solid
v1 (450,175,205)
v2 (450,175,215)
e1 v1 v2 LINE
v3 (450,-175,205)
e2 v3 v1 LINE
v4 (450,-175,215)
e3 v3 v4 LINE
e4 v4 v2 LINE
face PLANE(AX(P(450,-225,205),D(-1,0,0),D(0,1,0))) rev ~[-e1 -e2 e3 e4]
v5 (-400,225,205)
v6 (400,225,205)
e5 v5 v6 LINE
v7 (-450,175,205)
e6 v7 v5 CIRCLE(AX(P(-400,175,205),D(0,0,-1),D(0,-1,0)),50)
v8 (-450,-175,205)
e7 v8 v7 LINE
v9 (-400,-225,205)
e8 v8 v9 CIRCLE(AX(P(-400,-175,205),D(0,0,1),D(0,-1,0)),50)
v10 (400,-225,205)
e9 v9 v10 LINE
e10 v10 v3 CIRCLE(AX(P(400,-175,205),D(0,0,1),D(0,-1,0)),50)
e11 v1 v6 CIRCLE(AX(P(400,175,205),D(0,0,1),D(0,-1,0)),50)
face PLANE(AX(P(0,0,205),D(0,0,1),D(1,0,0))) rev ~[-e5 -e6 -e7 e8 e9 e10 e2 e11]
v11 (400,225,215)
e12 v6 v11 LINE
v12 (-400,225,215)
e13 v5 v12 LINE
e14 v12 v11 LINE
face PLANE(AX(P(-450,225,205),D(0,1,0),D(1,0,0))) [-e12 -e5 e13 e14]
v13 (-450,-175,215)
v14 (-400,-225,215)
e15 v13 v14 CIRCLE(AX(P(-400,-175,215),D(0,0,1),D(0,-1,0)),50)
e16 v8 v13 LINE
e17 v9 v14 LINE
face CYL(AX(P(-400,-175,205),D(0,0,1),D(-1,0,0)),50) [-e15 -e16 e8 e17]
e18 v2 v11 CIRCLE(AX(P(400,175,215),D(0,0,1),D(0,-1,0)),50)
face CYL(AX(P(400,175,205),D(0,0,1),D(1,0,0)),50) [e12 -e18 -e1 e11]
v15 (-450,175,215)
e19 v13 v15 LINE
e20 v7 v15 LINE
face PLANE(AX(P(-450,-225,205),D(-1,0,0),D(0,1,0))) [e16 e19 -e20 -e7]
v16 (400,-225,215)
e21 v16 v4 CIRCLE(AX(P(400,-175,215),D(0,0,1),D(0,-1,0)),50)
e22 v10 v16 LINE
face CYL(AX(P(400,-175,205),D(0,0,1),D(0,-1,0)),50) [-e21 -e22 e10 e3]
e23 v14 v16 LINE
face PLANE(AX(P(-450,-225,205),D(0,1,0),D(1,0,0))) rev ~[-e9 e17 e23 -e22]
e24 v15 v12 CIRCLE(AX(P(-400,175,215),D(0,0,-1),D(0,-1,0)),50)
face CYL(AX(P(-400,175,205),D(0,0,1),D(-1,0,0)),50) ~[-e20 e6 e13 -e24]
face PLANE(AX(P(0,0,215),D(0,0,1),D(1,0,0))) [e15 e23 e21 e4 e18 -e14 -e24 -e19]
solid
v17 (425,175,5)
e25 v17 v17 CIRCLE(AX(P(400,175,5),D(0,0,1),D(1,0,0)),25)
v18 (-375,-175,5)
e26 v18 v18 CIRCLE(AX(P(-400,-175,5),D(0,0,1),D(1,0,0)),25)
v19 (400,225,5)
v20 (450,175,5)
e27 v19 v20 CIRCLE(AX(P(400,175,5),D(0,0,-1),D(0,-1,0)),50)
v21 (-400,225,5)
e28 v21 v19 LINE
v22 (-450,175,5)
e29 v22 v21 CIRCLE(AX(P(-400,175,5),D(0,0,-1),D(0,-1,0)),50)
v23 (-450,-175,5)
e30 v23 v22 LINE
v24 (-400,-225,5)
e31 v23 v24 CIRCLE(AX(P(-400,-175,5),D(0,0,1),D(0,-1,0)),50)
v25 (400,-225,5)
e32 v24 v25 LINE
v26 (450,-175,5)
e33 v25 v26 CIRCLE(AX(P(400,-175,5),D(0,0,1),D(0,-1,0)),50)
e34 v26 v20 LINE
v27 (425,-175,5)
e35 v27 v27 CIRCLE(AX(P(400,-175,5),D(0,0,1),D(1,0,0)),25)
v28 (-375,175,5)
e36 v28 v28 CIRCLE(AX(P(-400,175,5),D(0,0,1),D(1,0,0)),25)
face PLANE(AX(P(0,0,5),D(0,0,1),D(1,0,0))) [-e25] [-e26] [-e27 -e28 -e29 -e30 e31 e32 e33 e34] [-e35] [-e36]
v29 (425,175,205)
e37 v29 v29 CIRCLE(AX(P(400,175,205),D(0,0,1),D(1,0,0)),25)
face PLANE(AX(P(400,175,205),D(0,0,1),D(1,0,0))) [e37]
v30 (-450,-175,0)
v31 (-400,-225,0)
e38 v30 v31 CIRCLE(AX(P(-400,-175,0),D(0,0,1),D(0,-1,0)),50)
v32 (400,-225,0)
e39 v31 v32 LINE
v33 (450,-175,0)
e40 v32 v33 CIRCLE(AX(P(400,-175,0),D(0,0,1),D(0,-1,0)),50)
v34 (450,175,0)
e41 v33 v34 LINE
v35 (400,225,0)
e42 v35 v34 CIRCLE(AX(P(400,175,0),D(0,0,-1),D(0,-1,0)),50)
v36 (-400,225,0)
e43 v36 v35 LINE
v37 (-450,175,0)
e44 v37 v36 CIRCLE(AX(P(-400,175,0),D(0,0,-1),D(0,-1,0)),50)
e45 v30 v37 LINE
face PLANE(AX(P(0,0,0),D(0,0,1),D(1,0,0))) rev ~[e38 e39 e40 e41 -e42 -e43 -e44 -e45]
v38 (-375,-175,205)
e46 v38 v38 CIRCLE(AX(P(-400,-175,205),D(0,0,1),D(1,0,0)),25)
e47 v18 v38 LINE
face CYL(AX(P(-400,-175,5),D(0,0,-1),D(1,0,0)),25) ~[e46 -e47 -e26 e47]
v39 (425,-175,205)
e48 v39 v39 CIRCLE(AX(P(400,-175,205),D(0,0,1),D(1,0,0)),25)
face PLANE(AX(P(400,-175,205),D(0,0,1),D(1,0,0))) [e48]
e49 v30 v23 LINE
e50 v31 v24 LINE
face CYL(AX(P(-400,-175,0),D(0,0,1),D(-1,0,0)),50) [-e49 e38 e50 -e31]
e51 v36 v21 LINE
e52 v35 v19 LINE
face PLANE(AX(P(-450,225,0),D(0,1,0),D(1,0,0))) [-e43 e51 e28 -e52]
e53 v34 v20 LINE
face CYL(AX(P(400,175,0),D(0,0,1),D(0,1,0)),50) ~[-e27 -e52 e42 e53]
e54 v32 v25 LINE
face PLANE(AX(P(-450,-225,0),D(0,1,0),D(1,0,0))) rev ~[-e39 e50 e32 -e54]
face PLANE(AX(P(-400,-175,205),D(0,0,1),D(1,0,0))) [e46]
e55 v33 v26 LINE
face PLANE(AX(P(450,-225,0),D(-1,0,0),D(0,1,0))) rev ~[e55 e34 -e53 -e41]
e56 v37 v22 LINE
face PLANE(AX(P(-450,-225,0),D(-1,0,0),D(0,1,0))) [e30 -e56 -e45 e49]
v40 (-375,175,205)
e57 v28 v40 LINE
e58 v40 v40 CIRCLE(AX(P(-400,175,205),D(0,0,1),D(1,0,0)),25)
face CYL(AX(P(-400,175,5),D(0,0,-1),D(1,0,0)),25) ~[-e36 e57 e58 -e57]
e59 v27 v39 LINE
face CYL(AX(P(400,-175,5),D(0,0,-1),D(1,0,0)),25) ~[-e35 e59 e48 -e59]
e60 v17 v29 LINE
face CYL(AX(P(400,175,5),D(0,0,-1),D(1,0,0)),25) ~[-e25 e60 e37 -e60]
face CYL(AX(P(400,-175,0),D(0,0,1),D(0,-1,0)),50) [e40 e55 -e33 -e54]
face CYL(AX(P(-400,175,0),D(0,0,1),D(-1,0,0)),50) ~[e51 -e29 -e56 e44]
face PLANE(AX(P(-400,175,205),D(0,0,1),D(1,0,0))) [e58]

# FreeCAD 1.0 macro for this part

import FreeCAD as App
import Part
import Sketcher
from FreeCAD import Vector
Q = App.Units.Quantity


def edges_at(feature, points):
    """Names of the edges that pass closest to the given points."""
    edges = feature.Shape.Edges
    near = lambda p: min(range(len(edges)), key=lambda i: edges[i].distToShape(Part.Vertex(*p))[0])
    return sorted({f"Edge{near(p) + 1}" for p in points})


def add_polygon(sketch, points):
    """Adds a closed chain of lines whose ends are joined by coincident constraints."""
    first, n = sketch.GeometryCount, len(points)
    for a, b in zip(points, points[1:] + points[:1]):
        sketch.addGeometry(Part.LineSegment(App.Vector(*a, 0), App.Vector(*b, 0)), False)
    for i in range(n):
        sketch.addConstraint(Sketcher.Constraint("Coincident", first + i, 2, first + (i + 1) % n, 1))

doc = App.newDocument("Part")
body = doc.addObject("PartDesign::Body", "Body")

sketch1 = body.newObject("Sketcher::SketchObject", "Sketch")
sketch1.AttachmentSupport = (doc.getObject("XY_Plane"), [""])
sketch1.MapMode = "FlatFace"
add_polygon(sketch1, [(-450, 225), (-450, -225), (450, -225), (450, 225)])
sketch1.addConstraint(Sketcher.Constraint("Vertical", 0))
sketch1.addConstraint(Sketcher.Constraint("Horizontal", 1))
sketch1.addConstraint(Sketcher.Constraint("Vertical", 2))
sketch1.addConstraint(Sketcher.Constraint("Horizontal", 3))
sketch1.addConstraint(Sketcher.Constraint("Symmetric", 0, 2, 2, 2, -1, 1))
sketch1.addConstraint(Sketcher.Constraint("DistanceX", 1, 1, 1, 2, Q("900 mm")))
sketch1.addConstraint(Sketcher.Constraint("DistanceY", 0, 2, 0, 1, Q("450 mm")))
pad1 = body.newObject("PartDesign::Pad", "Pad")
pad1.Profile = sketch1
pad1.Length = 5

sketch2 = body.newObject("Sketcher::SketchObject", "Sketch001")
sketch2.AttachmentSupport = (doc.getObject("XY_Plane"), [""])
sketch2.MapMode = "FlatFace"
sketch2.AttachmentOffset = App.Placement(Vector(0, 0, 5), App.Rotation())
sketch2.addGeometry(Part.Circle(Vector(-400, 175, 0), Vector(0, 0, 1), 25), False)
sketch2.addGeometry(Part.Circle(Vector(400, 175, 0), Vector(0, 0, 1), 25), False)
sketch2.addGeometry(Part.Circle(Vector(-400, -175, 0), Vector(0, 0, 1), 25), False)
sketch2.addGeometry(Part.Circle(Vector(400, -175, 0), Vector(0, 0, 1), 25), False)
sketch2.addConstraint(Sketcher.Constraint("Equal", 0, 1))
sketch2.addConstraint(Sketcher.Constraint("Equal", 1, 2))
sketch2.addConstraint(Sketcher.Constraint("Equal", 2, 3))
sketch2.addConstraint(Sketcher.Constraint("Symmetric", 1, 3, 2, 3, -1, 1))
sketch2.addConstraint(Sketcher.Constraint("Symmetric", 0, 3, 3, 3, -1, 1))
sketch2.addConstraint(Sketcher.Constraint("Symmetric", 0, 3, 1, 3, -2))
sketch2.addConstraint(Sketcher.Constraint("Diameter", 0, Q("50 mm")))
sketch2.addConstraint(Sketcher.Constraint("DistanceX", 0, 3, -1, 1, Q("400 mm")))
sketch2.addConstraint(Sketcher.Constraint("DistanceY", -1, 1, 0, 3, Q("175 mm")))
pad2 = body.newObject("PartDesign::Pad", "Pad001")
pad2.Profile = sketch2
pad2.Length = 200
doc.recompute()

fillet = body.newObject("PartDesign::Fillet", "Fillet")
fillet.Base = (pad2, edges_at(pad2, [
    (-450, -225, 2.5),
    (450, -225, 2.5),
    (450, 225, 2.5),
    (-450, 225, 2.5),
]))
fillet.Radius = 50
body2 = doc.addObject("PartDesign::Body", "Body001")

sketch3 = body2.newObject("Sketcher::SketchObject", "Sketch002")
sketch3.AttachmentSupport = (doc.getObject("XY_Plane001"), [""])
sketch3.MapMode = "FlatFace"
sketch3.AttachmentOffset = App.Placement(Vector(0, 0, 205), App.Rotation())
add_polygon(sketch3, [(-450, 225), (-450, -225), (450, -225), (450, 225)])
sketch3.addConstraint(Sketcher.Constraint("Vertical", 0))
sketch3.addConstraint(Sketcher.Constraint("Horizontal", 1))
sketch3.addConstraint(Sketcher.Constraint("Vertical", 2))
sketch3.addConstraint(Sketcher.Constraint("Horizontal", 3))
sketch3.addConstraint(Sketcher.Constraint("Symmetric", 0, 2, 2, 2, -1, 1))
sketch3.addConstraint(Sketcher.Constraint("DistanceX", 1, 1, 1, 2, Q("900 mm")))
sketch3.addConstraint(Sketcher.Constraint("DistanceY", 0, 2, 0, 1, Q("450 mm")))
pad3 = body2.newObject("PartDesign::Pad", "Pad002")
pad3.Profile = sketch3
pad3.Length = 10
doc.recompute()

fillet2 = body2.newObject("PartDesign::Fillet", "Fillet001")
fillet2.Base = (pad3, edges_at(pad3, [
    (-450, -225, 210),
    (450, -225, 210),
    (450, 225, 210),
    (-450, 225, 210),
]))
fillet2.Radius = 50

doc.recompute()
